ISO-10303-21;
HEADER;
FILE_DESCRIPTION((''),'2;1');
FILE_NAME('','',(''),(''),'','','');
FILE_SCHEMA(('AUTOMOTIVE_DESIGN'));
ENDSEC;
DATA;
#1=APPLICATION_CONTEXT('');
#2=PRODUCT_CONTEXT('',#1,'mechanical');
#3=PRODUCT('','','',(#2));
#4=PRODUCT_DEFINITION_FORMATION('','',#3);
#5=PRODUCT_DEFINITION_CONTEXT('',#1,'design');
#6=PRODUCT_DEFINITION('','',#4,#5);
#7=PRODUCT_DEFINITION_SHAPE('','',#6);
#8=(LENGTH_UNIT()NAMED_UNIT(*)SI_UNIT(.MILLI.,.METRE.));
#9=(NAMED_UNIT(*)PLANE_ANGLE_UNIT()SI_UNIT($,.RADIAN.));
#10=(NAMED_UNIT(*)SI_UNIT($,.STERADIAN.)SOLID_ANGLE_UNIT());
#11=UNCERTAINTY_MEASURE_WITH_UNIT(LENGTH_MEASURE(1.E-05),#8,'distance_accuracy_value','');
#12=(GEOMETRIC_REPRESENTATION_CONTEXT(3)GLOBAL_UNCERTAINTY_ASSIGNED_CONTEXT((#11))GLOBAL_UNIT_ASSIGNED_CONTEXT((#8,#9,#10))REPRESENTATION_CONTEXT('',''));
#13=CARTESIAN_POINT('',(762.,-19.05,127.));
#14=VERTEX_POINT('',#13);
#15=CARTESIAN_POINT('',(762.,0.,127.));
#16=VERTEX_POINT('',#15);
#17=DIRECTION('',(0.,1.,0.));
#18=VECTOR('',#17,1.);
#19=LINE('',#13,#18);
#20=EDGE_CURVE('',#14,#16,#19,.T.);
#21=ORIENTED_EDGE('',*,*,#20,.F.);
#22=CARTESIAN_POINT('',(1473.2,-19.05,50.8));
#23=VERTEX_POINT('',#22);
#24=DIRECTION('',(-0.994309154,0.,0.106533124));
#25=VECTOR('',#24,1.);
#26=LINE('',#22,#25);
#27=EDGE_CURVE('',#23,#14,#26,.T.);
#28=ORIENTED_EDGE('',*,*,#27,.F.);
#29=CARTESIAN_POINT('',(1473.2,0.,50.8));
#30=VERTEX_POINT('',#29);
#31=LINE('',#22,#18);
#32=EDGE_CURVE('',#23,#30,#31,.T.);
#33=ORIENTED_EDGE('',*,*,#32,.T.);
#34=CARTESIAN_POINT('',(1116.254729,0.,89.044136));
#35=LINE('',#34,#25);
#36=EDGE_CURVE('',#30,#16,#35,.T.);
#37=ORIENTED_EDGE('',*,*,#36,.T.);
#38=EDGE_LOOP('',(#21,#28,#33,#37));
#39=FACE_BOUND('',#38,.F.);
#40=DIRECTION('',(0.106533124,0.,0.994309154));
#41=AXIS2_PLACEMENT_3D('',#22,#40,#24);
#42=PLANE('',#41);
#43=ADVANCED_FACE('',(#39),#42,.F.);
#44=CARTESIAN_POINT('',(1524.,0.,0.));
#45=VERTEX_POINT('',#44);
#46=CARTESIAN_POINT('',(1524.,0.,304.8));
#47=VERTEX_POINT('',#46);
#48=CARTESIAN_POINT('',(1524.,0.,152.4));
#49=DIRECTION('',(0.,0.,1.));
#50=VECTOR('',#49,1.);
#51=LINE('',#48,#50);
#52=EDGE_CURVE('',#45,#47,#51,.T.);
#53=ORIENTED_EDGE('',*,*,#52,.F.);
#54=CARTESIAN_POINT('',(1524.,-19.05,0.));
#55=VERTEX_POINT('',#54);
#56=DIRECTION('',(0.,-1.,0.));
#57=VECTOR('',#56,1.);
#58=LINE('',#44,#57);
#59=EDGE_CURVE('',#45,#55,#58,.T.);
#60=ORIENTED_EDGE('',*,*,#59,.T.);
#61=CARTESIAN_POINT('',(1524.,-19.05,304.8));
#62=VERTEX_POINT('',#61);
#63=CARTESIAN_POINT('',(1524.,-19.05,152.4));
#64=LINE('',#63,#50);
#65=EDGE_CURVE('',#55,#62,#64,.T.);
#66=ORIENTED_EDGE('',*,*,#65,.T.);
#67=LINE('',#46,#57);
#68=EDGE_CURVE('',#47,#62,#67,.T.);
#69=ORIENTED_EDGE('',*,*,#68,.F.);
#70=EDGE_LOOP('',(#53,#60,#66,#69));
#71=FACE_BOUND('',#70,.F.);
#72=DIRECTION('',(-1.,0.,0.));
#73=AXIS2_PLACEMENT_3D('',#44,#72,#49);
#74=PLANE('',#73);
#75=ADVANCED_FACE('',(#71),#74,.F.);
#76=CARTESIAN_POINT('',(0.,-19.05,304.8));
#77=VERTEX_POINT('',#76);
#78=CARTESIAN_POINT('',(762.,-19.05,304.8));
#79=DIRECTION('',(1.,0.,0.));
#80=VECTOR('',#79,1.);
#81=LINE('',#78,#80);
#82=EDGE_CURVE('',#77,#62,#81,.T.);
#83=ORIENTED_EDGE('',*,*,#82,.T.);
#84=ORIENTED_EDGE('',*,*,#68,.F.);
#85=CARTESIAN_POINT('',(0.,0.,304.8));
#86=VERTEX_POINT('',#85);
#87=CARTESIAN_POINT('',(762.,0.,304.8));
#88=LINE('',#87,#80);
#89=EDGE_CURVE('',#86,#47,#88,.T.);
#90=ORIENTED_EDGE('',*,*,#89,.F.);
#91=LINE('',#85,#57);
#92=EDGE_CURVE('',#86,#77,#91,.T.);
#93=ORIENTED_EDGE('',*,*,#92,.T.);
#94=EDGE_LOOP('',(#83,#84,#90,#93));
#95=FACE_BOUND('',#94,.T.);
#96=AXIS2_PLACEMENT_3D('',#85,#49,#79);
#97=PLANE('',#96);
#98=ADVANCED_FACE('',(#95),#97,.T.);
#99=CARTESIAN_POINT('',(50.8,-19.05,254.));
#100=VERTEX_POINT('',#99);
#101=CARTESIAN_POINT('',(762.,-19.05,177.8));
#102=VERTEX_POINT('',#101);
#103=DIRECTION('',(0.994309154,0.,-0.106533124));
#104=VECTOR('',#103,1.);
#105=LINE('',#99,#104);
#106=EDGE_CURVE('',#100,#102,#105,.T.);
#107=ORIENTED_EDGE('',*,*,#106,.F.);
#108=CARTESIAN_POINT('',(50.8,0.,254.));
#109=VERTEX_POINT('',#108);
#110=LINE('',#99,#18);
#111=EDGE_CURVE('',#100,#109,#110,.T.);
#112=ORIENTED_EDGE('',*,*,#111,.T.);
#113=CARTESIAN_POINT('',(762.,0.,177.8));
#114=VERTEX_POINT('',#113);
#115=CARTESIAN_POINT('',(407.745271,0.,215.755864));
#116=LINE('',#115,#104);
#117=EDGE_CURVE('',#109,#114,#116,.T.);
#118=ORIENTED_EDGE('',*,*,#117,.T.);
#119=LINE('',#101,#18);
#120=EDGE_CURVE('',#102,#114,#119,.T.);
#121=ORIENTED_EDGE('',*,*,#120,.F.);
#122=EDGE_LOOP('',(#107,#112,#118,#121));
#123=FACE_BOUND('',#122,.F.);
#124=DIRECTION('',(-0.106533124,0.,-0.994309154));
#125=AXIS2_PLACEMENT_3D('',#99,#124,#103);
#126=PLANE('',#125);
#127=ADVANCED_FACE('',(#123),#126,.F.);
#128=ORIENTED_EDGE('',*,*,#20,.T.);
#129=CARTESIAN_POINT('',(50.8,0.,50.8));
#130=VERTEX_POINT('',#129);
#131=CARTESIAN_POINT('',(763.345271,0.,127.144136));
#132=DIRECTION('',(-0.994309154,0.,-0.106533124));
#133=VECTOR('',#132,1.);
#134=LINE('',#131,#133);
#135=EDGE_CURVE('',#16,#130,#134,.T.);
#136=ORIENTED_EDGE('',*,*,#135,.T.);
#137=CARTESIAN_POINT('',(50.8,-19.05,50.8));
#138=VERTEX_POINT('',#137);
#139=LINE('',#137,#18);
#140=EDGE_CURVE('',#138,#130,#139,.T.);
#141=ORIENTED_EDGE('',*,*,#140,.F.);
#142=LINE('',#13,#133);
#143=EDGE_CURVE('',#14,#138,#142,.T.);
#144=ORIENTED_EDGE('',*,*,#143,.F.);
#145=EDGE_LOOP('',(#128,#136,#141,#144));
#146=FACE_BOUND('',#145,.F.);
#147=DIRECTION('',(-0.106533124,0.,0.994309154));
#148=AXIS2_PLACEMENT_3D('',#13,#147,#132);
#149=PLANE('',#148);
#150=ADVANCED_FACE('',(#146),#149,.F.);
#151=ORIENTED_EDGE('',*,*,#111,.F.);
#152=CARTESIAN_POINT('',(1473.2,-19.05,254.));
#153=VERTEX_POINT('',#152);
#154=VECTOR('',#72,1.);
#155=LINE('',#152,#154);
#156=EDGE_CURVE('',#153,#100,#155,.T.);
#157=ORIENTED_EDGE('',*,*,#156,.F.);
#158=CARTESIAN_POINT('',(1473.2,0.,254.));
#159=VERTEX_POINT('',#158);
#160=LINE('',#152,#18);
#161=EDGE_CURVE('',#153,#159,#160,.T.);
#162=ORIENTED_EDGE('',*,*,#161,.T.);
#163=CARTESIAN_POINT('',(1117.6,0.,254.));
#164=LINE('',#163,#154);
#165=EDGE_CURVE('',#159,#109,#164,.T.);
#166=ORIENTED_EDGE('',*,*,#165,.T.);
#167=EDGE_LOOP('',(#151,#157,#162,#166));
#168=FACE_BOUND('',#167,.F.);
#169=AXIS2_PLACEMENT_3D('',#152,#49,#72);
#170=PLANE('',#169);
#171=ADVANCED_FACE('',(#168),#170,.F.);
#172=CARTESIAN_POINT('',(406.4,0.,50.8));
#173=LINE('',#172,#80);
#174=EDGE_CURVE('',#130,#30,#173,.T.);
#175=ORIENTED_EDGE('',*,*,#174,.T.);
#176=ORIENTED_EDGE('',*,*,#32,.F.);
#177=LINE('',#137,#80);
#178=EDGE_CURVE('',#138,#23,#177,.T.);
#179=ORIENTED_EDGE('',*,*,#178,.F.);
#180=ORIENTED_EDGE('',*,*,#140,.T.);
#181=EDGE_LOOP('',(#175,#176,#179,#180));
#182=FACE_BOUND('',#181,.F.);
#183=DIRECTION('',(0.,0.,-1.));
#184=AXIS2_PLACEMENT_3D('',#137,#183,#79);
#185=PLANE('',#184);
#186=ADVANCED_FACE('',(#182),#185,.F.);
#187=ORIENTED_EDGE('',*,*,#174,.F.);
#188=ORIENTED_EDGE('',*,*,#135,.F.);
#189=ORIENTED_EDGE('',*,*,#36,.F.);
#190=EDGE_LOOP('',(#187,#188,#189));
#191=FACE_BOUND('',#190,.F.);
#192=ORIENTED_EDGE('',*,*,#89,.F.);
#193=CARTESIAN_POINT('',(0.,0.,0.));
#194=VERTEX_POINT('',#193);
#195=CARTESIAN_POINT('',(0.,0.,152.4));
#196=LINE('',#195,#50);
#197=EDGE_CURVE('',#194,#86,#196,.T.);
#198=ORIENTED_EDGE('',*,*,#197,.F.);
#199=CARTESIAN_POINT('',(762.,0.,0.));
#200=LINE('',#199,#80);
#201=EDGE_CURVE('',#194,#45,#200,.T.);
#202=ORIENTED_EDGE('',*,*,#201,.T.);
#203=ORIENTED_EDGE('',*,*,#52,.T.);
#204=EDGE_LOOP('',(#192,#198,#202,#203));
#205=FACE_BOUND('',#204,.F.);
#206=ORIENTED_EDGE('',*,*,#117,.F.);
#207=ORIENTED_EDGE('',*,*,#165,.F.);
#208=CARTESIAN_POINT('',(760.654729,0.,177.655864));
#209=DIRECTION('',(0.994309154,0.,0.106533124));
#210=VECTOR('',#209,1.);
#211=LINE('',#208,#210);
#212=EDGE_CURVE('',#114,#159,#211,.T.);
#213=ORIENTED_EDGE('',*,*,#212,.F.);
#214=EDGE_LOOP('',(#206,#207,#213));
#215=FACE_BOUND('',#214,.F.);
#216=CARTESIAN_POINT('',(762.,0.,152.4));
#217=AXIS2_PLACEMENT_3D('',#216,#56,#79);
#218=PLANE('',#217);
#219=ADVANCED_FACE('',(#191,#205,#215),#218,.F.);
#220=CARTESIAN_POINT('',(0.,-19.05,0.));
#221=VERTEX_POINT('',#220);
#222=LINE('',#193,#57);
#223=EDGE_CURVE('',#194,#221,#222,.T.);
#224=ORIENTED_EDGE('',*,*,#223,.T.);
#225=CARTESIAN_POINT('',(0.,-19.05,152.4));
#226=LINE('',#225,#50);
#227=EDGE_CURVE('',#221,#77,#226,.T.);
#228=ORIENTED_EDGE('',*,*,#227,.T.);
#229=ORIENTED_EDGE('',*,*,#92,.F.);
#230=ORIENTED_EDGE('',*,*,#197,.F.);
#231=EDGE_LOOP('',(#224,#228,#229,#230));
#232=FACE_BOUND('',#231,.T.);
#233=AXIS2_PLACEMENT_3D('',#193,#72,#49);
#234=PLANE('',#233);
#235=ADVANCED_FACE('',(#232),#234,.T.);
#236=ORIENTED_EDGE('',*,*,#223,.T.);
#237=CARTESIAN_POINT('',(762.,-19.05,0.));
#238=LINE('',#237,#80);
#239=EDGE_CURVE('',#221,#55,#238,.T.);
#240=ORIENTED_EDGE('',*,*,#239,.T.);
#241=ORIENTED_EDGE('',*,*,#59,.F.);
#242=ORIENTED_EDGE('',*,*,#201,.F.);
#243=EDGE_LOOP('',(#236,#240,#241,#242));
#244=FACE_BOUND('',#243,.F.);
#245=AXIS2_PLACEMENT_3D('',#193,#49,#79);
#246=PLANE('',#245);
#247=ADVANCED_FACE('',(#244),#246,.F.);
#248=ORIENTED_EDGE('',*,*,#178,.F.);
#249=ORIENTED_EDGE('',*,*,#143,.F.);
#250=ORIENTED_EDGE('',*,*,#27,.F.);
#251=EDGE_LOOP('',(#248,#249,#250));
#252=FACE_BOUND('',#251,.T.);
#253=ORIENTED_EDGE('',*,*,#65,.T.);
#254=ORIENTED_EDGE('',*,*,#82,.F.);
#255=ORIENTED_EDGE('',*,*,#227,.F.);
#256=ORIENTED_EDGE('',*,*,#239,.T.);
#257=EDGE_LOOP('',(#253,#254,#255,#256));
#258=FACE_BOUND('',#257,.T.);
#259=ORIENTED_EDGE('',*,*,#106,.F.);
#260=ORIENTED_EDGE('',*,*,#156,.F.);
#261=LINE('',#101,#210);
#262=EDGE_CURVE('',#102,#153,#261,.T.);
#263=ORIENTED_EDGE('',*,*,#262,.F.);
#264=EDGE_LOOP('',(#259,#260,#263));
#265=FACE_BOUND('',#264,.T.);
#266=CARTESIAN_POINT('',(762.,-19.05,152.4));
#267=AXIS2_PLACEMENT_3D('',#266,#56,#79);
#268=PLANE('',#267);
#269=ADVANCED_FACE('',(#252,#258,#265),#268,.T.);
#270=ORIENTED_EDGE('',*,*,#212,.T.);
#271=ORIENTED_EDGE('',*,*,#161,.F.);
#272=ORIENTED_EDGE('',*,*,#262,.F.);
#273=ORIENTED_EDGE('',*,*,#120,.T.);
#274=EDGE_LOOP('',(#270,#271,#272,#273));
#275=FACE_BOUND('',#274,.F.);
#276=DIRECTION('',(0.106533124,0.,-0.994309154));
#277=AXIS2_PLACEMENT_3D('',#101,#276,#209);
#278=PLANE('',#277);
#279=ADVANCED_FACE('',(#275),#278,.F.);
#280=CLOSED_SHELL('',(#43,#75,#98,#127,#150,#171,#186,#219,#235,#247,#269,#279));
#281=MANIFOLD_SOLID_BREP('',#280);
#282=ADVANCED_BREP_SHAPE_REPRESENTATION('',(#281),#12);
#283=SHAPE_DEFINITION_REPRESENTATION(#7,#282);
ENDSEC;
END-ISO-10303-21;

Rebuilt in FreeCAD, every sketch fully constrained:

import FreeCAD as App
import Part
import Sketcher
Q = App.Units.Quantity

doc = App.newDocument("Part")
params = doc.addObject("Spreadsheet::Sheet", "Params")
for row, (alias, value) in enumerate([
    ("sketch1_width", "60 in"),
    ("sketch1_height", "12 in"),
    ("pad1_length", "0.75 in"),
    ("sketch2_width", "56 in"),
], start=1):
    params.set(f"A{row}", alias)
    params.set(f"B{row}", "=" + value)
    params.setAlias(f"B{row}", alias)

body = doc.addObject("PartDesign::Body", "Body")

sketch1 = body.newObject("Sketcher::SketchObject", "Sketch")
sketch1.AttachmentSupport = (doc.getObject("XZ_Plane"), [""])
sketch1.MapMode = "FlatFace"
sketch1.addGeometry([
    Part.LineSegment(App.Vector(0, 305, 0), App.Vector(0, 0, 0)),
    Part.LineSegment(App.Vector(0, 0, 0), App.Vector(1524, 0, 0)),
    Part.LineSegment(App.Vector(1524, 0, 0), App.Vector(1524, 305, 0)),
    Part.LineSegment(App.Vector(1524, 305, 0), App.Vector(0, 305, 0)),
], False)
sketch1.addConstraint([
    Sketcher.Constraint("Coincident", 0, 2, 1, 1),
    Sketcher.Constraint("Coincident", 1, 2, 2, 1),
    Sketcher.Constraint("Coincident", 2, 2, 3, 1),
    Sketcher.Constraint("Coincident", 3, 2, 0, 1),
    Sketcher.Constraint("Vertical", 0),
    Sketcher.Constraint("Horizontal", 1),
    Sketcher.Constraint("Vertical", 2),
    Sketcher.Constraint("Horizontal", 3),
    Sketcher.Constraint("Coincident", 0, 2, -1, 1),
    Sketcher.Constraint("DistanceX", 1, 1, 1, 2, Q("60 in")),
    Sketcher.Constraint("DistanceY", 0, 2, 0, 1, Q("12 in")),
])
sketch1.setExpression("Constraints[9]", "Params.sketch1_width")
sketch1.setExpression("Constraints[10]", "Params.sketch1_height")
pad1 = body.newObject("PartDesign::Pad", "Pad")
pad1.Profile = sketch1
pad1.setExpression("Length", "Params.pad1_length")

sketch2 = body.newObject("Sketcher::SketchObject", "Sketch001")
sketch2.AttachmentSupport = (doc.getObject("XZ_Plane"), [""])
sketch2.MapMode = "FlatFace"
sketch2.AttachmentOffset = App.Placement(App.Vector(0, 0, 0.75 * 25.4), App.Rotation())
sketch2.addGeometry([
    Part.LineSegment(App.Vector(1473, 254, 0), App.Vector(51, 254, 0)),
    Part.LineSegment(App.Vector(51, 254, 0), App.Vector(762, 178, 0)),
    Part.LineSegment(App.Vector(762, 178, 0), App.Vector(1473, 254, 0)),
    Part.LineSegment(App.Vector(762, 127, 0), App.Vector(51, 51, 0)),
    Part.LineSegment(App.Vector(51, 51, 0), App.Vector(1473, 51, 0)),
    Part.LineSegment(App.Vector(1473, 51, 0), App.Vector(762, 127, 0)),
], False)
sketch2.addConstraint([
    Sketcher.Constraint("Coincident", 0, 2, 1, 1),
    Sketcher.Constraint("Coincident", 1, 2, 2, 1),
    Sketcher.Constraint("Coincident", 2, 2, 0, 1),
    Sketcher.Constraint("Coincident", 3, 2, 4, 1),
    Sketcher.Constraint("Coincident", 4, 2, 5, 1),
    Sketcher.Constraint("Coincident", 5, 2, 3, 1),
    Sketcher.Constraint("Horizontal", 0),
    Sketcher.Constraint("Horizontal", 4),
    Sketcher.Constraint("Parallel", 2, 3),
    Sketcher.Constraint("Parallel", 1, 5),
    Sketcher.Constraint("Vertical", 0, 2, 3, 2),
    Sketcher.Constraint("Vertical", 2, 2, 4, 2),
    Sketcher.Constraint("Vertical", 1, 2, 5, 2),
    Sketcher.Constraint("DistanceX", 0, 2, 0, 1, Q("56 in")),
    Sketcher.Constraint("DistanceX", -1, 1, 0, 2, Q("2 in")),
    Sketcher.Constraint("DistanceY", -1, 1, 0, 2, Q("10 in")),
    Sketcher.Constraint("DistanceY", -1, 1, 1, 2, Q("7 in")),
    Sketcher.Constraint("DistanceY", -1, 1, 3, 2, Q("2 in")),
])
sketch2.setExpression("Constraints[13]", "Params.sketch2_width")
pocket1 = body.newObject("PartDesign::Pocket", "Pocket")
pocket1.Profile = sketch2
pocket1.Type = "ThroughAll"

doc.recompute()
